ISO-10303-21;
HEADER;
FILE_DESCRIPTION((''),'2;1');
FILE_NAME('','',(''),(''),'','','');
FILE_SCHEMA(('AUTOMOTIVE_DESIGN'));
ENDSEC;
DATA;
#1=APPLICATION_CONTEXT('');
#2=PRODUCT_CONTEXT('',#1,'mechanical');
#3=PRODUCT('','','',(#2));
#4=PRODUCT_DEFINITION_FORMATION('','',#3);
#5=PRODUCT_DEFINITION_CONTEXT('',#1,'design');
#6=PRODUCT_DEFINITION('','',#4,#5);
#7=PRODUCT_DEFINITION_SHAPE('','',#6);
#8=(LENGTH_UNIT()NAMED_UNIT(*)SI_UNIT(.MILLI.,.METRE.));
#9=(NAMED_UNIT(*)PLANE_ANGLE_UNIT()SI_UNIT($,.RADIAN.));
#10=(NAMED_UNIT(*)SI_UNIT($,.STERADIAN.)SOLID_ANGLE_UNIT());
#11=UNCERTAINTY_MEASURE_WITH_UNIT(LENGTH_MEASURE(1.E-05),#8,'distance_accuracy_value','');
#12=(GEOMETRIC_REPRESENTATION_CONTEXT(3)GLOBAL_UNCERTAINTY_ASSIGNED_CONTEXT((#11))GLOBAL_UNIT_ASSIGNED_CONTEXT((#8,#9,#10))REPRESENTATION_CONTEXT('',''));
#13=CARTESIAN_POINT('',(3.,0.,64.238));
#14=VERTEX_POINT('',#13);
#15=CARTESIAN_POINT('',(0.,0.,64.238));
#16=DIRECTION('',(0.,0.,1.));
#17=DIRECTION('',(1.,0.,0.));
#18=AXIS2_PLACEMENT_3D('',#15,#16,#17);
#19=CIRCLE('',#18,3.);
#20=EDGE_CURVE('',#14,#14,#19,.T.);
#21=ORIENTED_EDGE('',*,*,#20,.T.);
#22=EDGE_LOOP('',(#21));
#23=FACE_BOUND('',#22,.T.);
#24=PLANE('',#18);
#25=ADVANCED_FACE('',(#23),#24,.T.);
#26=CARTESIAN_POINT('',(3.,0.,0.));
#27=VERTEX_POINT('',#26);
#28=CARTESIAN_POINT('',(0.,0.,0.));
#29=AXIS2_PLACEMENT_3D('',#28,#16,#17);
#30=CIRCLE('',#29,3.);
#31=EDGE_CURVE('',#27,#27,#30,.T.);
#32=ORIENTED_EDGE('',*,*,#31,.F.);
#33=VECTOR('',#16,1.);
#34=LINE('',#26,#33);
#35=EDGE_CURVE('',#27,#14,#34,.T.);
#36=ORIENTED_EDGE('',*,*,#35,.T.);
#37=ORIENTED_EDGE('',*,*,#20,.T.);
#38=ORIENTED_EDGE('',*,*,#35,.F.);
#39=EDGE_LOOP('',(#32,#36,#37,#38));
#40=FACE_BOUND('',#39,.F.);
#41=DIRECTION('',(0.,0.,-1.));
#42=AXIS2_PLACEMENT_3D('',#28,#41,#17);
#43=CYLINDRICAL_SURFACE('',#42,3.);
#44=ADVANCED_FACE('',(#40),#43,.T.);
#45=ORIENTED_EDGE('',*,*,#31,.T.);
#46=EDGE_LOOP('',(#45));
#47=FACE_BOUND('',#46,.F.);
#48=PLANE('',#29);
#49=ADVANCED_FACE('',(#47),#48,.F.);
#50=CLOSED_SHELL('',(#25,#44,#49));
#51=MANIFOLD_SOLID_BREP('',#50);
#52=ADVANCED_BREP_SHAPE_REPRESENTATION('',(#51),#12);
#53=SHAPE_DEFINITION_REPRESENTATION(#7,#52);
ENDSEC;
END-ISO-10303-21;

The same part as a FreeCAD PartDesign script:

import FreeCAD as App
import Part
import Sketcher

doc = App.newDocument("Part")
params = doc.addObject("Spreadsheet::Sheet", "Params")
for row, (alias, value) in enumerate([
    ("sketch1_diameter", "6 mm"),
    ("pad1_length", "64.238 mm"),
], start=1):
    params.set(f"A{row}", alias)
    params.set(f"B{row}", "=" + value)
    params.setAlias(f"B{row}", alias)

body = doc.addObject("PartDesign::Body", "Body")

sketch1 = body.newObject("Sketcher::SketchObject", "Sketch")
sketch1.AttachmentSupport = (doc.getObject("XY_Plane"), [""])
sketch1.MapMode = "FlatFace"
sketch1.addGeometry(Part.Circle(App.Vector(0, 0, 0), App.Vector(0, 0, 1), 3), False)
sketch1.addConstraint([
    Sketcher.Constraint("Coincident", 0, 3, -1, 1),
    Sketcher.Constraint("Diameter", 0, 6.0),
])
sketch1.setExpression("Constraints[1]", "Params.sketch1_diameter")
pad1 = body.newObject("PartDesign::Pad", "Pad")
pad1.Profile = sketch1
pad1.setExpression("Length", "Params.pad1_length")

doc.recompute()
